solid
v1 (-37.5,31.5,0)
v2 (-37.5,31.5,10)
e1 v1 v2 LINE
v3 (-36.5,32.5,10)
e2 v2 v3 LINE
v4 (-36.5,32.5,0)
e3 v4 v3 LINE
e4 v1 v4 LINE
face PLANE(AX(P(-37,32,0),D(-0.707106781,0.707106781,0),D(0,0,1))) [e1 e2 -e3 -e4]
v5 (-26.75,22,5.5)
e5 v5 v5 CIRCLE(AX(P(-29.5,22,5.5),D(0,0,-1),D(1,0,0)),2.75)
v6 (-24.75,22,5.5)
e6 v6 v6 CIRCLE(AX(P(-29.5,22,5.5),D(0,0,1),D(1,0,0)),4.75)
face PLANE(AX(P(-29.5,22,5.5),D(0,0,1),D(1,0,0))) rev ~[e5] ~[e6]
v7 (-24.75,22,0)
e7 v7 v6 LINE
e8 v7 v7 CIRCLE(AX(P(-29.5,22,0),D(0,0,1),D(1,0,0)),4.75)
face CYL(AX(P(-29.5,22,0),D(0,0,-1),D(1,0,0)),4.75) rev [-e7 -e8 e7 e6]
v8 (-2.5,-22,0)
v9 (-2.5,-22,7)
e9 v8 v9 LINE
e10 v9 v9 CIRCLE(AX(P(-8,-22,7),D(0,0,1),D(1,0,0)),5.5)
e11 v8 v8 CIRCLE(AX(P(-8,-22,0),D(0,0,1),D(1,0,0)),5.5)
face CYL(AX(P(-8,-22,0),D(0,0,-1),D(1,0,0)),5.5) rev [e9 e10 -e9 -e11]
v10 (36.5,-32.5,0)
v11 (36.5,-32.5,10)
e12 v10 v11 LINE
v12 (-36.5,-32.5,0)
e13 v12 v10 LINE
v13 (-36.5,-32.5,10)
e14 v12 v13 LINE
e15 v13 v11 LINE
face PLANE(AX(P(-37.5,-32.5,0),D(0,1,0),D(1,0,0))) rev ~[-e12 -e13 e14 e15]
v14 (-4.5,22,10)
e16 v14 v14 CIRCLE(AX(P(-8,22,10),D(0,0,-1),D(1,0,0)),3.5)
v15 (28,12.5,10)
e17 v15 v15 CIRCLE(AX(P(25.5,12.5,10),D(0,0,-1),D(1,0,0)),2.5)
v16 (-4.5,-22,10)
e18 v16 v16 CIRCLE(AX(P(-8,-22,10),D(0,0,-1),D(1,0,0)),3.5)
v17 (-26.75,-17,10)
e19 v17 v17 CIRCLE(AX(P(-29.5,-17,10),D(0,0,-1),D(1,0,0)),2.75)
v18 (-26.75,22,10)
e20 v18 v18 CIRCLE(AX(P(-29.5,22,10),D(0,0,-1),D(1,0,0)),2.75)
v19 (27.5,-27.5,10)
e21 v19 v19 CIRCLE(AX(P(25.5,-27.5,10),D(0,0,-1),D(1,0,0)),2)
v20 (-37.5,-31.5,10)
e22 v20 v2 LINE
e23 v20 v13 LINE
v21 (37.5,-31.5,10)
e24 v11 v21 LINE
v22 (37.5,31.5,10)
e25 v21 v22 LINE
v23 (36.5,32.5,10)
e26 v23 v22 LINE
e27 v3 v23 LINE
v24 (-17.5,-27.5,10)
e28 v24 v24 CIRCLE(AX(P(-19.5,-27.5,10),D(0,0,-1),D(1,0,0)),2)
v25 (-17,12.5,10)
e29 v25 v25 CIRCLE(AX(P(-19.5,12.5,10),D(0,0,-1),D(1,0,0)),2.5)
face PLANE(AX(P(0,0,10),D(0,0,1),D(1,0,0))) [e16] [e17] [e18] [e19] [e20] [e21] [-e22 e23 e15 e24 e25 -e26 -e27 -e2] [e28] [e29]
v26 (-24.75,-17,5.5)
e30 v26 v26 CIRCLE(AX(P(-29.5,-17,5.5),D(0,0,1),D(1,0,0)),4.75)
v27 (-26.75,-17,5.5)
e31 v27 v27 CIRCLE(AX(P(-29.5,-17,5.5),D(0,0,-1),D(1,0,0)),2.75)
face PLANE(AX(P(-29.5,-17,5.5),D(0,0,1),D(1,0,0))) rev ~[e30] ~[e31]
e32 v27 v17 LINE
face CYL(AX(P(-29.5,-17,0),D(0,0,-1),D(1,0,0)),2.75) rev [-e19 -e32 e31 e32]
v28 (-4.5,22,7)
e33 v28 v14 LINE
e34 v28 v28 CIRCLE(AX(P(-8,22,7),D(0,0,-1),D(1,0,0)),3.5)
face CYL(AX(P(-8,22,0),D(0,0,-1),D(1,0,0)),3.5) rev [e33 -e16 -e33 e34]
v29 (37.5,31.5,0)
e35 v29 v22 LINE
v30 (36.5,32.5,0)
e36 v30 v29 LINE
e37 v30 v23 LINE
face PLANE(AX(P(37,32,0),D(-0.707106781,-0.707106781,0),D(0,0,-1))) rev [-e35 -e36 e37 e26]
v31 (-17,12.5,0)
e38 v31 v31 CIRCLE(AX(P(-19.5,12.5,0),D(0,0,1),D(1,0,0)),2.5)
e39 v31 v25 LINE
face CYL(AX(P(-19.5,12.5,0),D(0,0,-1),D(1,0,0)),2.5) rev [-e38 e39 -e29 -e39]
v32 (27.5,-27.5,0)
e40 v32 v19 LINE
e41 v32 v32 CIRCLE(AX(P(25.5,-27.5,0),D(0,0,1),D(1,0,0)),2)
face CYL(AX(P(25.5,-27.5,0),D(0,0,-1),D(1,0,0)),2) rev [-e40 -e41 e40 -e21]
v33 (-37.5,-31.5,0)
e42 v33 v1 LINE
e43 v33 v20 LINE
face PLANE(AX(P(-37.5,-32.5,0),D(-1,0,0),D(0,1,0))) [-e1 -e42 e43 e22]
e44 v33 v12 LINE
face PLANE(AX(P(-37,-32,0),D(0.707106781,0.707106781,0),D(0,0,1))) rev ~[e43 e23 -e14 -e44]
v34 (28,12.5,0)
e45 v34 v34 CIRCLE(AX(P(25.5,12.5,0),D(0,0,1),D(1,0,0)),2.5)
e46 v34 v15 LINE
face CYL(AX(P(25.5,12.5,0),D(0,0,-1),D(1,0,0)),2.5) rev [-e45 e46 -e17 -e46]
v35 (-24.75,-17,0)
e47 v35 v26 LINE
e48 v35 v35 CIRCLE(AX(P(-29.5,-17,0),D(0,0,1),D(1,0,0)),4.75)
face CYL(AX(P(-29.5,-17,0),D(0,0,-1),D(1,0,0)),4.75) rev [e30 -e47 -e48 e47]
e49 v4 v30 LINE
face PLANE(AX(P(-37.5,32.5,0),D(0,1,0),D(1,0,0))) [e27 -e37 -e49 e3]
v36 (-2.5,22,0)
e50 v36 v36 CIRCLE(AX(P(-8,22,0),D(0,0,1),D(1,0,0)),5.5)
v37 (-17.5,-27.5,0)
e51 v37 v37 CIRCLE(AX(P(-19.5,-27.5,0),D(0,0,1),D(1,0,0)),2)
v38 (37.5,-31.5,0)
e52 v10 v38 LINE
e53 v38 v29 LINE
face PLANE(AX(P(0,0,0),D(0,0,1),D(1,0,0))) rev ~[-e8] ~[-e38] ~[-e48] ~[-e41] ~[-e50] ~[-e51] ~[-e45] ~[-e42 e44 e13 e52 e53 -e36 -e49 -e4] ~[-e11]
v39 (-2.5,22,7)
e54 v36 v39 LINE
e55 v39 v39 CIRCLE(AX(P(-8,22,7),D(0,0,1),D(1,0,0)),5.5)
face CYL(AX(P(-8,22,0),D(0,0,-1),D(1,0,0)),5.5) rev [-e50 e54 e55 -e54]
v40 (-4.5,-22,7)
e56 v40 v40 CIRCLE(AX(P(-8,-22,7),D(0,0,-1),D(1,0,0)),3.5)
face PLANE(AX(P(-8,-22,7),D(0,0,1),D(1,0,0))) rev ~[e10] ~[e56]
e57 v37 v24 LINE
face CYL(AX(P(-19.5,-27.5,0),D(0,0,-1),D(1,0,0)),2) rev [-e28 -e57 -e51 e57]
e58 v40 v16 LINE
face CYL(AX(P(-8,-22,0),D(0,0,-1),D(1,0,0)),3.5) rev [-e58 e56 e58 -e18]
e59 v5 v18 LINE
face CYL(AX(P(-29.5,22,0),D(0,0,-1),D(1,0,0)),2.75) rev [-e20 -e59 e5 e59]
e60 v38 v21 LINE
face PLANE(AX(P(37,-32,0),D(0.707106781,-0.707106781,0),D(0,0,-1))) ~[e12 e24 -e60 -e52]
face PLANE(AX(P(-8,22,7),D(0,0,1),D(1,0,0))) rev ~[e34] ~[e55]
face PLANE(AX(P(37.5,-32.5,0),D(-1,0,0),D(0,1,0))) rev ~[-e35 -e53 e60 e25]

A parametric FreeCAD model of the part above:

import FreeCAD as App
import Part
import Sketcher

V = App.Vector


def edges_at(feature, points):
    """Names of the edges that pass closest to the given points."""
    edges = feature.Shape.Edges
    near = lambda p: min(range(len(edges)), key=lambda i: edges[i].distToShape(Part.Vertex(*p))[0])
    return sorted({f"Edge{near(p) + 1}" for p in points})


def add_polygon(sketch, points):
    """Adds a closed chain of lines whose ends are joined by coincident constraints."""
    first, n = sketch.GeometryCount, len(points)
    for a, b in zip(points, points[1:] + points[:1]):
        sketch.addGeometry(Part.LineSegment(App.Vector(*a, 0), App.Vector(*b, 0)), False)
    for i in range(n):
        sketch.addConstraint(Sketcher.Constraint("Coincident", first + i, 2, first + (i + 1) % n, 1))

doc = App.newDocument("Part")
params = doc.addObject("Spreadsheet::Sheet", "Params")
for row, (alias, value) in enumerate([
    ("sketch1_width", "75 mm"),
    ("sketch1_height", "65 mm"),
    ("pad1_length", "10 mm"),
    ("sketch2_diameter", "11 mm"),
    ("pocket1_length", "7 mm"),
    ("sketch3_diameter", "9.5 mm"),
    ("pocket2_length", "5.5 mm"),
    ("sketch4_diameter", "7 mm"),
    ("pocket3_length", "25 mm"),
    ("sketch5_diameter", "5.5 mm"),
    ("pocket4_length", "25 mm"),
    ("sketch6_diameter", "4 mm"),
    ("sketch6_diameter2", "5 mm"),
    ("pocket5_length", "25 mm"),
    ("chamfer_size", "1 mm"),
], start=1):
    params.set(f"A{row}", alias)
    params.set(f"B{row}", "=" + value)
    params.setAlias(f"B{row}", alias)

body = doc.addObject("PartDesign::Body", "Body")

# Sketch on XY plane
sketch1 = body.newObject("Sketcher::SketchObject", "Sketch")
sketch1.AttachmentSupport = (doc.getObject("XY_Plane"), [""])
sketch1.MapMode = "FlatFace"
add_polygon(sketch1, [(-37.5, 32.5), (-37.5, -32.5), (37.5, -32.5), (37.5, 32.5)])  # lines 0-3
sketch1.addConstraint(Sketcher.Constraint("Vertical", 0))
sketch1.addConstraint(Sketcher.Constraint("Horizontal", 1))
sketch1.addConstraint(Sketcher.Constraint("Vertical", 2))
sketch1.addConstraint(Sketcher.Constraint("Horizontal", 3))
sketch1.addConstraint(Sketcher.Constraint("Symmetric", 0, 2, 2, 2, -1, 1))
sketch1.addConstraint(Sketcher.Constraint("DistanceX", 1, 1, 1, 2, 75.0))
sketch1.addConstraint(Sketcher.Constraint("DistanceY", 0, 2, 0, 1, 65.0))
sketch1.setExpression("Constraints[9]", "Params.sketch1_width")
sketch1.setExpression("Constraints[10]", "Params.sketch1_height")
pad1 = body.newObject("PartDesign::Pad", "Pad")
pad1.Profile = sketch1
pad1.setExpression("Length", "Params.pad1_length")

# Sketch on XY plane
sketch2 = body.newObject("Sketcher::SketchObject", "Sketch001")
sketch2.AttachmentSupport = (doc.getObject("XY_Plane"), [""])
sketch2.MapMode = "FlatFace"
sketch2.addGeometry(Part.Circle(V(-8, 22, 0), V(0, 0, 1), 5.5), False)
sketch2.addGeometry(Part.Circle(V(-8, -22, 0), V(0, 0, 1), 5.5), False)
sketch2.addConstraint(Sketcher.Constraint("Equal", 0, 1))
sketch2.addConstraint(Sketcher.Constraint("Symmetric", 0, 3, 1, 3, -1))
sketch2.addConstraint(Sketcher.Constraint("Diameter", 0, 11.0))
sketch2.addConstraint(Sketcher.Constraint("DistanceX", 0, 3, -1, 1, 8.0))
sketch2.addConstraint(Sketcher.Constraint("DistanceY", -1, 1, 0, 3, 22.0))
sketch2.setExpression("Constraints[2]", "Params.sketch2_diameter")
pocket1 = body.newObject("PartDesign::Pocket", "Pocket")
pocket1.Profile = sketch2
pocket1.setExpression("Length", "Params.pocket1_length")
pocket1.Reversed = True

# Sketch on XY plane
sketch3 = body.newObject("Sketcher::SketchObject", "Sketch002")
sketch3.AttachmentSupport = (doc.getObject("XY_Plane"), [""])
sketch3.MapMode = "FlatFace"
sketch3.addGeometry(Part.Circle(V(-29.5, 22, 0), V(0, 0, 1), 4.75), False)
sketch3.addGeometry(Part.Circle(V(-29.5, -17, 0), V(0, 0, 1), 4.75), False)
sketch3.addConstraint(Sketcher.Constraint("Equal", 0, 1))
sketch3.addConstraint(Sketcher.Constraint("Vertical", 0, 3, 1, 3))
sketch3.addConstraint(Sketcher.Constraint("Diameter", 0, 9.5))
sketch3.addConstraint(Sketcher.Constraint("DistanceY", -1, 1, 0, 3, 22.0))
sketch3.addConstraint(Sketcher.Constraint("DistanceY", 1, 3, -1, 1, 17.0))
sketch3.addConstraint(Sketcher.Constraint("DistanceX", 0, 3, -1, 1, 29.5))
sketch3.setExpression("Constraints[2]", "Params.sketch3_diameter")
pocket2 = body.newObject("PartDesign::Pocket", "Pocket001")
pocket2.Profile = sketch3
pocket2.setExpression("Length", "Params.pocket2_length")
pocket2.Reversed = True

# Sketch on XY plane
sketch4 = body.newObject("Sketcher::SketchObject", "Sketch003")
sketch4.AttachmentSupport = (doc.getObject("XY_Plane"), [""])
sketch4.MapMode = "FlatFace"
sketch4.addGeometry(Part.Circle(V(-8, -22, 0), V(0, 0, 1), 3.5), False)
sketch4.addGeometry(Part.Circle(V(-8, 22, 0), V(0, 0, 1), 3.5), False)
sketch4.addConstraint(Sketcher.Constraint("Equal", 0, 1))
sketch4.addConstraint(Sketcher.Constraint("Symmetric", 0, 3, 1, 3, -1))
sketch4.addConstraint(Sketcher.Constraint("Diameter", 0, 7.0))
sketch4.addConstraint(Sketcher.Constraint("DistanceX", 0, 3, -1, 1, 8.0))
sketch4.addConstraint(Sketcher.Constraint("DistanceY", 0, 3, -1, 1, 22.0))
sketch4.setExpression("Constraints[2]", "Params.sketch4_diameter")
pocket3 = body.newObject("PartDesign::Pocket", "Pocket002")
pocket3.Profile = sketch4
pocket3.setExpression("Length", "Params.pocket3_length")
pocket3.Reversed = True

# Sketch on XY plane
sketch5 = body.newObject("Sketcher::SketchObject", "Sketch004")
sketch5.AttachmentSupport = (doc.getObject("XY_Plane"), [""])
sketch5.MapMode = "FlatFace"
sketch5.addGeometry(Part.Circle(V(-29.5, -17, 0), V(0, 0, 1), 2.75), False)
sketch5.addGeometry(Part.Circle(V(-29.5, 22, 0), V(0, 0, 1), 2.75), False)
sketch5.addConstraint(Sketcher.Constraint("Equal", 0, 1))
sketch5.addConstraint(Sketcher.Constraint("Vertical", 0, 3, 1, 3))
sketch5.addConstraint(Sketcher.Constraint("Diameter", 0, 5.5))
sketch5.addConstraint(Sketcher.Constraint("DistanceY", 0, 3, -1, 1, 17.0))
sketch5.addConstraint(Sketcher.Constraint("DistanceY", -1, 1, 1, 3, 22.0))
sketch5.addConstraint(Sketcher.Constraint("DistanceX", 0, 3, -1, 1, 29.5))
sketch5.setExpression("Constraints[2]", "Params.sketch5_diameter")
pocket4 = body.newObject("PartDesign::Pocket", "Pocket003")
pocket4.Profile = sketch5
pocket4.setExpression("Length", "Params.pocket4_length")
pocket4.Reversed = True

# Sketch on XY plane
sketch6 = body.newObject("Sketcher::SketchObject", "Sketch005")
sketch6.AttachmentSupport = (doc.getObject("XY_Plane"), [""])
sketch6.MapMode = "FlatFace"
sketch6.addGeometry(Part.Circle(V(-19.5, -27.5, 0), V(0, 0, 1), 2), False)
sketch6.addGeometry(Part.Circle(V(-19.5, 12.5, 0), V(0, 0, 1), 2.5), False)
sketch6.addGeometry(Part.Circle(V(25.5, -27.5, 0), V(0, 0, 1), 2), False)
sketch6.addGeometry(Part.Circle(V(25.5, 12.5, 0), V(0, 0, 1), 2.5), False)
sketch6.addConstraint(Sketcher.Constraint("Equal", 0, 2))
sketch6.addConstraint(Sketcher.Constraint("Equal", 1, 3))
sketch6.addConstraint(Sketcher.Constraint("Horizontal", 0, 3, 2, 3))
sketch6.addConstraint(Sketcher.Constraint("Horizontal", 1, 3, 3, 3))
sketch6.addConstraint(Sketcher.Constraint("Vertical", 0, 3, 1, 3))
sketch6.addConstraint(Sketcher.Constraint("Vertical", 2, 3, 3, 3))
sketch6.addConstraint(Sketcher.Constraint("Diameter", 0, 4.0))
sketch6.addConstraint(Sketcher.Constraint("Diameter", 1, 5.0))
sketch6.addConstraint(Sketcher.Constraint("DistanceY", 0, 3, 1, 3, 40.0))
sketch6.addConstraint(Sketcher.Constraint("DistanceX", 0, 3, 2, 3, 45.0))
sketch6.addConstraint(Sketcher.Constraint("DistanceX", 0, 3, -1, 1, 19.5))
sketch6.addConstraint(Sketcher.Constraint("DistanceY", 0, 3, -1, 1, 27.5))
sketch6.setExpression("Constraints[6]", "Params.sketch6_diameter")
sketch6.setExpression("Constraints[7]", "Params.sketch6_diameter2")
pocket5 = body.newObject("PartDesign::Pocket", "Pocket004")
pocket5.Profile = sketch6
pocket5.setExpression("Length", "Params.pocket5_length")
pocket5.Reversed = True
doc.recompute()

chamfer = body.newObject("PartDesign::Chamfer", "Chamfer")
chamfer.Base = (pocket5, edges_at(pocket5, [
    (-37.5, 32.5, 5),
    (-37.5, -32.5, 5),
    (37.5, -32.5, 5),
    (37.5, 32.5, 5),
]))
chamfer.setExpression("Size", "Params.chamfer_size")

doc.recompute()
